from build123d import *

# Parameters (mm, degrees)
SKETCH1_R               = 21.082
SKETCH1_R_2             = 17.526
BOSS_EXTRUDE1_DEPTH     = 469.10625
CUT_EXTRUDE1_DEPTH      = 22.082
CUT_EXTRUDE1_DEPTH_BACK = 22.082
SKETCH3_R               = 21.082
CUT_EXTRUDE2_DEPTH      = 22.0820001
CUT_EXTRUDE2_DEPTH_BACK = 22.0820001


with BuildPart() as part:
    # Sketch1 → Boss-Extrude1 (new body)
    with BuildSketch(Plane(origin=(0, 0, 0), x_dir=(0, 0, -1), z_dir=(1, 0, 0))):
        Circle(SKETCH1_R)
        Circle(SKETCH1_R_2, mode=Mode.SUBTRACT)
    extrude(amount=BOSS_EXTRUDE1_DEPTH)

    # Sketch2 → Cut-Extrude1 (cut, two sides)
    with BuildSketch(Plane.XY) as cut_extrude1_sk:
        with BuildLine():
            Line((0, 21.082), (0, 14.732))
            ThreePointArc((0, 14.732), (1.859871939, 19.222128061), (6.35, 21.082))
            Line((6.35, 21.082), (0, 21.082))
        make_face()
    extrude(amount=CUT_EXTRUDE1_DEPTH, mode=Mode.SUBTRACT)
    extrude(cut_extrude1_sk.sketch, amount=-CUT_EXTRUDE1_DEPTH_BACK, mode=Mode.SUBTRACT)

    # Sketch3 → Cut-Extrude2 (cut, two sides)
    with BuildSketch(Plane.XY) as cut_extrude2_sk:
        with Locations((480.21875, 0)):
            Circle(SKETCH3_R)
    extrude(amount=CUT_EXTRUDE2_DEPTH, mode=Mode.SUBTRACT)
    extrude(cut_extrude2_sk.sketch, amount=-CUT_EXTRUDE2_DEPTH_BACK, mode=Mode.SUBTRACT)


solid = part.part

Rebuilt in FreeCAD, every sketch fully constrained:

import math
import FreeCAD as App
import Part
import Sketcher

V = App.Vector
Q = App.Units.Quantity

doc = App.newDocument("Part")
body = doc.addObject("PartDesign::Body", "Body")

sketch1 = body.newObject("Sketcher::SketchObject", "Sketch")
sketch1.AttachmentSupport = (doc.getObject("YZ_Plane"), [""])
sketch1.MapMode = "FlatFace"
sketch1.addGeometry([
    Part.Circle(V(0, 0, 0), V(0, 0, 1), 21),
    Part.Circle(V(0, 0, 0), V(0, 0, 1), 18),
], False)
sketch1.addConstraint([
    Sketcher.Constraint("Coincident", 0, 3, -1, 1),
    Sketcher.Constraint("Coincident", 1, 3, -1, 1),
    Sketcher.Constraint("Diameter", 0, Q("1.66 in")),
    Sketcher.Constraint("Diameter", 1, Q("1.38 in")),
])
pad1 = body.newObject("PartDesign::Pad", "Pad")
pad1.Profile = sketch1
pad1.Length = Q("18.46875 in")

sketch2 = body.newObject("Sketcher::SketchObject", "Sketch001")
sketch2.AttachmentSupport = (doc.getObject("XY_Plane"), [""])
sketch2.MapMode = "FlatFace"
sketch2.addGeometry([
    Part.LineSegment(V(0, 21, 0), V(0, 15, 0)),
    Part.ArcOfCircle(Part.Circle(V(6, 15, 0), V(0, 0, 1), 6), math.radians(90), math.radians(180)),
    Part.LineSegment(V(6, 21, 0), V(0, 21, 0)),
], False)
sketch2.addConstraint([
    Sketcher.Constraint("Tangent", 0, 2, 1, 2),
    Sketcher.Constraint("Tangent", 1, 1, 2, 1),
    Sketcher.Constraint("Coincident", 2, 2, 0, 1),
    Sketcher.Constraint("Vertical", 0),
    Sketcher.Constraint("Horizontal", 2),
    Sketcher.Constraint("PointOnObject", 0, 2, -2),
    Sketcher.Constraint("Radius", 1, Q("0.25 in")),
    Sketcher.Constraint("DistanceY", -1, 1, 1, 3, Q("0.58 in")),
])
pocket1 = body.newObject("PartDesign::Pocket", "Pocket")
pocket1.Profile = sketch2
pocket1.Type = "ThroughAll"
pocket1.Midplane = True

sketch3 = body.newObject("Sketcher::SketchObject", "Sketch002")
sketch3.AttachmentSupport = (doc.getObject("XY_Plane"), [""])
sketch3.MapMode = "FlatFace"
sketch3.addGeometry(Part.Circle(V(480, 0, 0), V(0, 0, 1), 21), False)
sketch3.addConstraint([
    Sketcher.Constraint("PointOnObject", 0, 3, -1),
    Sketcher.Constraint("Diameter", 0, Q("1.66 in")),
    Sketcher.Constraint("DistanceX", -1, 1, 0, 3, Q("18.90625 in")),
])
pocket2 = body.newObject("PartDesign::Pocket", "Pocket001")
pocket2.Profile = sketch3
pocket2.Type = "ThroughAll"
pocket2.Midplane = True

doc.recompute()
